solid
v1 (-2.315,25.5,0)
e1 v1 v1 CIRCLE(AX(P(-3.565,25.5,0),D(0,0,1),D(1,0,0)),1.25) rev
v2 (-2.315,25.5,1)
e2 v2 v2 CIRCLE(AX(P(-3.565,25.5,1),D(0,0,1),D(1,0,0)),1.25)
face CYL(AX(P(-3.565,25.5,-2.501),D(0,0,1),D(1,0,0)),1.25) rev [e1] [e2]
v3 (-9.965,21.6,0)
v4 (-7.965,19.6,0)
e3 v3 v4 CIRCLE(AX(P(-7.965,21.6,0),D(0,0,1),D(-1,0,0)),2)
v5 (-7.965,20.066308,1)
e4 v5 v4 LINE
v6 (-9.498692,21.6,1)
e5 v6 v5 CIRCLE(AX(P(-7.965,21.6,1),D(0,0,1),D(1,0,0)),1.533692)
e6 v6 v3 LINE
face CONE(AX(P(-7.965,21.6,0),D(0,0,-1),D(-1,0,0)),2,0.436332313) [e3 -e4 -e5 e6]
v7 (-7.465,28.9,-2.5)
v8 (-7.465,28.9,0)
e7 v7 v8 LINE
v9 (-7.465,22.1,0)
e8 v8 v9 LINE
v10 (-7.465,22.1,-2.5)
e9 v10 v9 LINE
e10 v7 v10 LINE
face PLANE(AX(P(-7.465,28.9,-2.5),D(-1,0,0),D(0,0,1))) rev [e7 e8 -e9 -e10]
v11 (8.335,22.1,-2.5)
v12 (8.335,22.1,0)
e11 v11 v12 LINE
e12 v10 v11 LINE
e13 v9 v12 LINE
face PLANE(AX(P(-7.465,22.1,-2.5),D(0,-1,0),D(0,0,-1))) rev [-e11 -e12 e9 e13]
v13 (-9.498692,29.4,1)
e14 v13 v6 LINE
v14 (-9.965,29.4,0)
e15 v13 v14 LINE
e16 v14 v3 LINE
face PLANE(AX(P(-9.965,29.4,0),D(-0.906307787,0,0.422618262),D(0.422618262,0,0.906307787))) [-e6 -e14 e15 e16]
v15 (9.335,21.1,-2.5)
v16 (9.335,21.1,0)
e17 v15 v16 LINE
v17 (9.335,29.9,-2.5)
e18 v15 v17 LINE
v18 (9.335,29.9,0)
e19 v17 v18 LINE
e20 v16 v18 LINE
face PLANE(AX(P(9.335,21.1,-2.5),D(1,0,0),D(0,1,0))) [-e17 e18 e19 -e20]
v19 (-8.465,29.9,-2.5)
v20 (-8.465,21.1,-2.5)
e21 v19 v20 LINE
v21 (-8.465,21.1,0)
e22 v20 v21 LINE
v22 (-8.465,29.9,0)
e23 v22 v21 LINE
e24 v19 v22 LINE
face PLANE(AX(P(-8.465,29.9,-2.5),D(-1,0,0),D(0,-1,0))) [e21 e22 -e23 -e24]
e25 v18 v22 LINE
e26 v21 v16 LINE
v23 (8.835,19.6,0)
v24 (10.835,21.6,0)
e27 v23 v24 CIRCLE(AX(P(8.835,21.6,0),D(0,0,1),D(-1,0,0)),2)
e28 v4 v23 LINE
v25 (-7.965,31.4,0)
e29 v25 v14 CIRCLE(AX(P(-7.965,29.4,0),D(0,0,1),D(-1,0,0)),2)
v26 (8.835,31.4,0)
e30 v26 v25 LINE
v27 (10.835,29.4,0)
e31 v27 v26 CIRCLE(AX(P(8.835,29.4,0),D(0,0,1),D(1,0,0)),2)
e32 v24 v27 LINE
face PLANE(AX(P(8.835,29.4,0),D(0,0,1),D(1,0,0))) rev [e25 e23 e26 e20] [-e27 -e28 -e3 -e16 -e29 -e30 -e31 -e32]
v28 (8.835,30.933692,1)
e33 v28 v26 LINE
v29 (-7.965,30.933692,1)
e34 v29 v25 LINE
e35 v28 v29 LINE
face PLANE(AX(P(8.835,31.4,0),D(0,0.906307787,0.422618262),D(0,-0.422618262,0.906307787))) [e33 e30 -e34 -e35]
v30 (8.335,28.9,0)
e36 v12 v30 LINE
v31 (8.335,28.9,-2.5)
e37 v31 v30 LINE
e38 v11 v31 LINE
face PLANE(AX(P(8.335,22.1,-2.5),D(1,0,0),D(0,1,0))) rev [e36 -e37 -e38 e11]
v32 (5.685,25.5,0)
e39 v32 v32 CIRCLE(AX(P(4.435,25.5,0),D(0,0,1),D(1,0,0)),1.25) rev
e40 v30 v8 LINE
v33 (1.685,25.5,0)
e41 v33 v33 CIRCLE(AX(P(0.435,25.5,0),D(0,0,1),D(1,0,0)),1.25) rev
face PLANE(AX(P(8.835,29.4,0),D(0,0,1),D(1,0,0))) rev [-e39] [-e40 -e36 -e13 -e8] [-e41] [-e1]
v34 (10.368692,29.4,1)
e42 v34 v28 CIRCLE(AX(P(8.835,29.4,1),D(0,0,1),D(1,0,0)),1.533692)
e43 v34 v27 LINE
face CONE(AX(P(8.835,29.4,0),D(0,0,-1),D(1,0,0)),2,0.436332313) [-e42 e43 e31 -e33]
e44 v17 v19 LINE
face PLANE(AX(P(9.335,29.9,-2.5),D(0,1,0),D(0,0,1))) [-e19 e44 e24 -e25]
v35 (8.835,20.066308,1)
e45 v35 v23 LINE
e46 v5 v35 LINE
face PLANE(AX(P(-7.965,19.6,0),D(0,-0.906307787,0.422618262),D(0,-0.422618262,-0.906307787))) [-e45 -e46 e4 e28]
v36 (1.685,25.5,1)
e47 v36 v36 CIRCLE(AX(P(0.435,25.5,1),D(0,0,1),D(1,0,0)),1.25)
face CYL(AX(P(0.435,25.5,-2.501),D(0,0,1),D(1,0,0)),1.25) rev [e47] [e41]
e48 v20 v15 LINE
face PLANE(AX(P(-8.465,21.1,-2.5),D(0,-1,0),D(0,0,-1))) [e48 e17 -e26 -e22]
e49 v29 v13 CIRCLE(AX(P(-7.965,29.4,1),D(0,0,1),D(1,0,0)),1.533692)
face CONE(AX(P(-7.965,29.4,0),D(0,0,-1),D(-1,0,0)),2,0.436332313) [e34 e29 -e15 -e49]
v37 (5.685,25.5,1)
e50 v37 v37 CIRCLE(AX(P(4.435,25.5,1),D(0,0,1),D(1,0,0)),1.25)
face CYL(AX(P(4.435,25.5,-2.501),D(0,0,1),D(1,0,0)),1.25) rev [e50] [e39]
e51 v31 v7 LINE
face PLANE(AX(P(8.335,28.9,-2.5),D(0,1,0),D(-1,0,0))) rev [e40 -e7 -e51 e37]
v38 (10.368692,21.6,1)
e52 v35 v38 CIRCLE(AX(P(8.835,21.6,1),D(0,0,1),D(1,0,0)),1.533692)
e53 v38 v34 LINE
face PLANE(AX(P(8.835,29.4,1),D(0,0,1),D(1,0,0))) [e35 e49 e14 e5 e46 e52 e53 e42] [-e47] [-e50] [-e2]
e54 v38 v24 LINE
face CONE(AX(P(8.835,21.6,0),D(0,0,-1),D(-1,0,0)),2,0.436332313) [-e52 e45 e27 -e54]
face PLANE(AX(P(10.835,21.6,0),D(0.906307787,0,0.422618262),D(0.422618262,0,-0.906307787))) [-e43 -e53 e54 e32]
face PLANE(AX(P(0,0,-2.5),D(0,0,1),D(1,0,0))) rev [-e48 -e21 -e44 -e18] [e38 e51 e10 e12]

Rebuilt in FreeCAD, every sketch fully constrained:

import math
import FreeCAD as App
import Part
import Sketcher


def add_polygon(sketch, points):
    """Adds a closed chain of lines whose ends are joined by coincident constraints."""
    first, n = sketch.GeometryCount, len(points)
    for a, b in zip(points, points[1:] + points[:1]):
        sketch.addGeometry(Part.LineSegment(App.Vector(*a, 0), App.Vector(*b, 0)), False)
    for i in range(n):
        sketch.addConstraint(Sketcher.Constraint("Coincident", first + i, 2, first + (i + 1) % n, 1))

doc = App.newDocument("Part")
body = doc.addObject("PartDesign::Body", "Body")

sketch1 = body.newObject("Sketcher::SketchObject", "Sketch")
sketch1.AttachmentSupport = (doc.getObject("XY_Plane"), [""])
sketch1.MapMode = "FlatFace"
add_polygon(sketch1, [(-8, 30), (-8, 21), (9, 21), (9, 30)])
add_polygon(sketch1, [(8, 22), (-7, 22), (-7, 29), (8, 29)])
sketch1.addConstraint([
    Sketcher.Constraint("Vertical", 0),
    Sketcher.Constraint("Horizontal", 1),
    Sketcher.Constraint("Vertical", 2),
    Sketcher.Constraint("Horizontal", 3),
    Sketcher.Constraint("Horizontal", 4),
    Sketcher.Constraint("Vertical", 5),
    Sketcher.Constraint("Horizontal", 6),
    Sketcher.Constraint("Vertical", 7),
    Sketcher.Constraint("DistanceX", 1, 1, 1, 2, 17.8),
    Sketcher.Constraint("DistanceX", 4, 2, 4, 1, 15.8),
    Sketcher.Constraint("DistanceY", 0, 2, 0, 1, 8.8),
    Sketcher.Constraint("DistanceY", 5, 1, 5, 2, 6.8),
    Sketcher.Constraint("DistanceX", 0, 2, 4, 2, 1.0),
    Sketcher.Constraint("DistanceY", 0, 2, 4, 2, 1.0),
    Sketcher.Constraint("DistanceY", -1, 1, 0, 2, 21.1),
    Sketcher.Constraint("DistanceX", 0, 2, -1, 1, 8.465),
])
pad1 = body.newObject("PartDesign::Pad", "Pad")
pad1.Profile = sketch1
pad1.Length = 2.5
pad1.Reversed = True

sketch2 = body.newObject("Sketcher::SketchObject", "Sketch001")
sketch2.AttachmentSupport = (doc.getObject("XY_Plane"), [""])
sketch2.MapMode = "FlatFace"
sketch2.addGeometry([
    Part.LineSegment(App.Vector(10.8, 21.6, 0), App.Vector(10.8, 29.4, 0)),
    Part.ArcOfCircle(Part.Circle(App.Vector(8.8, 29.4, 0), App.Vector(0, 0, 1), 2), math.radians(0), math.radians(90)),
    Part.LineSegment(App.Vector(8.8, 31.4, 0), App.Vector(-8, 31.4, 0)),
    Part.ArcOfCircle(Part.Circle(App.Vector(-8, 29.4, 0), App.Vector(0, 0, 1), 2), math.radians(90), math.radians(180)),
    Part.LineSegment(App.Vector(-10, 29.4, 0), App.Vector(-10, 21.6, 0)),
    Part.ArcOfCircle(Part.Circle(App.Vector(-8, 21.6, 0), App.Vector(0, 0, 1), 2), math.radians(-180), math.radians(-90)),
    Part.LineSegment(App.Vector(-8, 19.6, 0), App.Vector(8.8, 19.6, 0)),
    Part.ArcOfCircle(Part.Circle(App.Vector(8.8, 21.6, 0), App.Vector(0, 0, 1), 2), math.radians(-90), math.radians(0)),
], False)
sketch2.addConstraint([
    Sketcher.Constraint("Tangent", 0, 2, 1, 1),
    Sketcher.Constraint("Tangent", 1, 2, 2, 1),
    Sketcher.Constraint("Tangent", 2, 2, 3, 1),
    Sketcher.Constraint("Tangent", 3, 2, 4, 1),
    Sketcher.Constraint("Tangent", 4, 2, 5, 1),
    Sketcher.Constraint("Tangent", 5, 2, 6, 1),
    Sketcher.Constraint("Tangent", 6, 2, 7, 1),
    Sketcher.Constraint("Tangent", 7, 2, 0, 1),
    Sketcher.Constraint("Vertical", 0),
    Sketcher.Constraint("Horizontal", 2),
    Sketcher.Constraint("Vertical", 4),
    Sketcher.Constraint("Horizontal", 6),
    Sketcher.Constraint("Equal", 1, 3),
    Sketcher.Constraint("Equal", 3, 5),
    Sketcher.Constraint("Equal", 5, 7),
    Sketcher.Constraint("Radius", 1, 2.0),
    Sketcher.Constraint("DistanceX", 2, 2, 2, 1, 16.8),
    Sketcher.Constraint("DistanceY", 0, 1, 0, 2, 7.8),
    Sketcher.Constraint("DistanceY", -1, 1, 1, 3, 29.4),
    Sketcher.Constraint("DistanceX", -1, 1, 1, 3, 8.835),
])
pad2 = body.newObject("PartDesign::Pad", "Pad001")
pad2.Profile = sketch2
pad2.Length = 1
pad2.TaperAngle = -25

sketch3 = body.newObject("Sketcher::SketchObject", "Sketch002")
sketch3.AttachmentSupport = (doc.getObject("XY_Plane"), [""])
sketch3.MapMode = "FlatFace"
sketch3.AttachmentOffset = App.Placement(App.Vector(0, 0, 1), App.Rotation())
sketch3.addGeometry(Part.Circle(App.Vector(0.4, 25.5, 0), App.Vector(0, 0, 1), 1.2), False)
sketch3.addConstraint([
    Sketcher.Constraint("Diameter", 0, 2.5),
    Sketcher.Constraint("DistanceY", -1, 1, 0, 3, 25.5),
    Sketcher.Constraint("DistanceX", -1, 1, 0, 3, 0.435),
])
pocket1 = body.newObject("PartDesign::Pocket", "Pocket")
pocket1.Profile = sketch3
pocket1.Type = "UpToFirst"

sketch4 = body.newObject("Sketcher::SketchObject", "Sketch003")
sketch4.AttachmentSupport = (doc.getObject("XY_Plane"), [""])
sketch4.MapMode = "FlatFace"
sketch4.AttachmentOffset = App.Placement(App.Vector(0, 0, 1), App.Rotation())
sketch4.addGeometry(Part.Circle(App.Vector(-3.6, 25.5, 0), App.Vector(0, 0, 1), 1.2), False)
sketch4.addConstraint([
    Sketcher.Constraint("Diameter", 0, 2.5),
    Sketcher.Constraint("DistanceY", -1, 1, 0, 3, 25.5),
    Sketcher.Constraint("DistanceX", 0, 3, -1, 1, 3.565),
])
pocket2 = body.newObject("PartDesign::Pocket", "Pocket001")
pocket2.Profile = sketch4
pocket2.Type = "UpToFirst"

sketch5 = body.newObject("Sketcher::SketchObject", "Sketch004")
sketch5.AttachmentSupport = (doc.getObject("XY_Plane"), [""])
sketch5.MapMode = "FlatFace"
sketch5.AttachmentOffset = App.Placement(App.Vector(0, 0, 1), App.Rotation())
sketch5.addGeometry(Part.Circle(App.Vector(4.4, 25.5, 0), App.Vector(0, 0, 1), 1.2), False)
sketch5.addConstraint([
    Sketcher.Constraint("Diameter", 0, 2.5),
    Sketcher.Constraint("DistanceY", -1, 1, 0, 3, 25.5),
    Sketcher.Constraint("DistanceX", -1, 1, 0, 3, 4.435),
])
pocket3 = body.newObject("PartDesign::Pocket", "Pocket002")
pocket3.Profile = sketch5
pocket3.Type = "UpToFirst"

doc.recompute()
